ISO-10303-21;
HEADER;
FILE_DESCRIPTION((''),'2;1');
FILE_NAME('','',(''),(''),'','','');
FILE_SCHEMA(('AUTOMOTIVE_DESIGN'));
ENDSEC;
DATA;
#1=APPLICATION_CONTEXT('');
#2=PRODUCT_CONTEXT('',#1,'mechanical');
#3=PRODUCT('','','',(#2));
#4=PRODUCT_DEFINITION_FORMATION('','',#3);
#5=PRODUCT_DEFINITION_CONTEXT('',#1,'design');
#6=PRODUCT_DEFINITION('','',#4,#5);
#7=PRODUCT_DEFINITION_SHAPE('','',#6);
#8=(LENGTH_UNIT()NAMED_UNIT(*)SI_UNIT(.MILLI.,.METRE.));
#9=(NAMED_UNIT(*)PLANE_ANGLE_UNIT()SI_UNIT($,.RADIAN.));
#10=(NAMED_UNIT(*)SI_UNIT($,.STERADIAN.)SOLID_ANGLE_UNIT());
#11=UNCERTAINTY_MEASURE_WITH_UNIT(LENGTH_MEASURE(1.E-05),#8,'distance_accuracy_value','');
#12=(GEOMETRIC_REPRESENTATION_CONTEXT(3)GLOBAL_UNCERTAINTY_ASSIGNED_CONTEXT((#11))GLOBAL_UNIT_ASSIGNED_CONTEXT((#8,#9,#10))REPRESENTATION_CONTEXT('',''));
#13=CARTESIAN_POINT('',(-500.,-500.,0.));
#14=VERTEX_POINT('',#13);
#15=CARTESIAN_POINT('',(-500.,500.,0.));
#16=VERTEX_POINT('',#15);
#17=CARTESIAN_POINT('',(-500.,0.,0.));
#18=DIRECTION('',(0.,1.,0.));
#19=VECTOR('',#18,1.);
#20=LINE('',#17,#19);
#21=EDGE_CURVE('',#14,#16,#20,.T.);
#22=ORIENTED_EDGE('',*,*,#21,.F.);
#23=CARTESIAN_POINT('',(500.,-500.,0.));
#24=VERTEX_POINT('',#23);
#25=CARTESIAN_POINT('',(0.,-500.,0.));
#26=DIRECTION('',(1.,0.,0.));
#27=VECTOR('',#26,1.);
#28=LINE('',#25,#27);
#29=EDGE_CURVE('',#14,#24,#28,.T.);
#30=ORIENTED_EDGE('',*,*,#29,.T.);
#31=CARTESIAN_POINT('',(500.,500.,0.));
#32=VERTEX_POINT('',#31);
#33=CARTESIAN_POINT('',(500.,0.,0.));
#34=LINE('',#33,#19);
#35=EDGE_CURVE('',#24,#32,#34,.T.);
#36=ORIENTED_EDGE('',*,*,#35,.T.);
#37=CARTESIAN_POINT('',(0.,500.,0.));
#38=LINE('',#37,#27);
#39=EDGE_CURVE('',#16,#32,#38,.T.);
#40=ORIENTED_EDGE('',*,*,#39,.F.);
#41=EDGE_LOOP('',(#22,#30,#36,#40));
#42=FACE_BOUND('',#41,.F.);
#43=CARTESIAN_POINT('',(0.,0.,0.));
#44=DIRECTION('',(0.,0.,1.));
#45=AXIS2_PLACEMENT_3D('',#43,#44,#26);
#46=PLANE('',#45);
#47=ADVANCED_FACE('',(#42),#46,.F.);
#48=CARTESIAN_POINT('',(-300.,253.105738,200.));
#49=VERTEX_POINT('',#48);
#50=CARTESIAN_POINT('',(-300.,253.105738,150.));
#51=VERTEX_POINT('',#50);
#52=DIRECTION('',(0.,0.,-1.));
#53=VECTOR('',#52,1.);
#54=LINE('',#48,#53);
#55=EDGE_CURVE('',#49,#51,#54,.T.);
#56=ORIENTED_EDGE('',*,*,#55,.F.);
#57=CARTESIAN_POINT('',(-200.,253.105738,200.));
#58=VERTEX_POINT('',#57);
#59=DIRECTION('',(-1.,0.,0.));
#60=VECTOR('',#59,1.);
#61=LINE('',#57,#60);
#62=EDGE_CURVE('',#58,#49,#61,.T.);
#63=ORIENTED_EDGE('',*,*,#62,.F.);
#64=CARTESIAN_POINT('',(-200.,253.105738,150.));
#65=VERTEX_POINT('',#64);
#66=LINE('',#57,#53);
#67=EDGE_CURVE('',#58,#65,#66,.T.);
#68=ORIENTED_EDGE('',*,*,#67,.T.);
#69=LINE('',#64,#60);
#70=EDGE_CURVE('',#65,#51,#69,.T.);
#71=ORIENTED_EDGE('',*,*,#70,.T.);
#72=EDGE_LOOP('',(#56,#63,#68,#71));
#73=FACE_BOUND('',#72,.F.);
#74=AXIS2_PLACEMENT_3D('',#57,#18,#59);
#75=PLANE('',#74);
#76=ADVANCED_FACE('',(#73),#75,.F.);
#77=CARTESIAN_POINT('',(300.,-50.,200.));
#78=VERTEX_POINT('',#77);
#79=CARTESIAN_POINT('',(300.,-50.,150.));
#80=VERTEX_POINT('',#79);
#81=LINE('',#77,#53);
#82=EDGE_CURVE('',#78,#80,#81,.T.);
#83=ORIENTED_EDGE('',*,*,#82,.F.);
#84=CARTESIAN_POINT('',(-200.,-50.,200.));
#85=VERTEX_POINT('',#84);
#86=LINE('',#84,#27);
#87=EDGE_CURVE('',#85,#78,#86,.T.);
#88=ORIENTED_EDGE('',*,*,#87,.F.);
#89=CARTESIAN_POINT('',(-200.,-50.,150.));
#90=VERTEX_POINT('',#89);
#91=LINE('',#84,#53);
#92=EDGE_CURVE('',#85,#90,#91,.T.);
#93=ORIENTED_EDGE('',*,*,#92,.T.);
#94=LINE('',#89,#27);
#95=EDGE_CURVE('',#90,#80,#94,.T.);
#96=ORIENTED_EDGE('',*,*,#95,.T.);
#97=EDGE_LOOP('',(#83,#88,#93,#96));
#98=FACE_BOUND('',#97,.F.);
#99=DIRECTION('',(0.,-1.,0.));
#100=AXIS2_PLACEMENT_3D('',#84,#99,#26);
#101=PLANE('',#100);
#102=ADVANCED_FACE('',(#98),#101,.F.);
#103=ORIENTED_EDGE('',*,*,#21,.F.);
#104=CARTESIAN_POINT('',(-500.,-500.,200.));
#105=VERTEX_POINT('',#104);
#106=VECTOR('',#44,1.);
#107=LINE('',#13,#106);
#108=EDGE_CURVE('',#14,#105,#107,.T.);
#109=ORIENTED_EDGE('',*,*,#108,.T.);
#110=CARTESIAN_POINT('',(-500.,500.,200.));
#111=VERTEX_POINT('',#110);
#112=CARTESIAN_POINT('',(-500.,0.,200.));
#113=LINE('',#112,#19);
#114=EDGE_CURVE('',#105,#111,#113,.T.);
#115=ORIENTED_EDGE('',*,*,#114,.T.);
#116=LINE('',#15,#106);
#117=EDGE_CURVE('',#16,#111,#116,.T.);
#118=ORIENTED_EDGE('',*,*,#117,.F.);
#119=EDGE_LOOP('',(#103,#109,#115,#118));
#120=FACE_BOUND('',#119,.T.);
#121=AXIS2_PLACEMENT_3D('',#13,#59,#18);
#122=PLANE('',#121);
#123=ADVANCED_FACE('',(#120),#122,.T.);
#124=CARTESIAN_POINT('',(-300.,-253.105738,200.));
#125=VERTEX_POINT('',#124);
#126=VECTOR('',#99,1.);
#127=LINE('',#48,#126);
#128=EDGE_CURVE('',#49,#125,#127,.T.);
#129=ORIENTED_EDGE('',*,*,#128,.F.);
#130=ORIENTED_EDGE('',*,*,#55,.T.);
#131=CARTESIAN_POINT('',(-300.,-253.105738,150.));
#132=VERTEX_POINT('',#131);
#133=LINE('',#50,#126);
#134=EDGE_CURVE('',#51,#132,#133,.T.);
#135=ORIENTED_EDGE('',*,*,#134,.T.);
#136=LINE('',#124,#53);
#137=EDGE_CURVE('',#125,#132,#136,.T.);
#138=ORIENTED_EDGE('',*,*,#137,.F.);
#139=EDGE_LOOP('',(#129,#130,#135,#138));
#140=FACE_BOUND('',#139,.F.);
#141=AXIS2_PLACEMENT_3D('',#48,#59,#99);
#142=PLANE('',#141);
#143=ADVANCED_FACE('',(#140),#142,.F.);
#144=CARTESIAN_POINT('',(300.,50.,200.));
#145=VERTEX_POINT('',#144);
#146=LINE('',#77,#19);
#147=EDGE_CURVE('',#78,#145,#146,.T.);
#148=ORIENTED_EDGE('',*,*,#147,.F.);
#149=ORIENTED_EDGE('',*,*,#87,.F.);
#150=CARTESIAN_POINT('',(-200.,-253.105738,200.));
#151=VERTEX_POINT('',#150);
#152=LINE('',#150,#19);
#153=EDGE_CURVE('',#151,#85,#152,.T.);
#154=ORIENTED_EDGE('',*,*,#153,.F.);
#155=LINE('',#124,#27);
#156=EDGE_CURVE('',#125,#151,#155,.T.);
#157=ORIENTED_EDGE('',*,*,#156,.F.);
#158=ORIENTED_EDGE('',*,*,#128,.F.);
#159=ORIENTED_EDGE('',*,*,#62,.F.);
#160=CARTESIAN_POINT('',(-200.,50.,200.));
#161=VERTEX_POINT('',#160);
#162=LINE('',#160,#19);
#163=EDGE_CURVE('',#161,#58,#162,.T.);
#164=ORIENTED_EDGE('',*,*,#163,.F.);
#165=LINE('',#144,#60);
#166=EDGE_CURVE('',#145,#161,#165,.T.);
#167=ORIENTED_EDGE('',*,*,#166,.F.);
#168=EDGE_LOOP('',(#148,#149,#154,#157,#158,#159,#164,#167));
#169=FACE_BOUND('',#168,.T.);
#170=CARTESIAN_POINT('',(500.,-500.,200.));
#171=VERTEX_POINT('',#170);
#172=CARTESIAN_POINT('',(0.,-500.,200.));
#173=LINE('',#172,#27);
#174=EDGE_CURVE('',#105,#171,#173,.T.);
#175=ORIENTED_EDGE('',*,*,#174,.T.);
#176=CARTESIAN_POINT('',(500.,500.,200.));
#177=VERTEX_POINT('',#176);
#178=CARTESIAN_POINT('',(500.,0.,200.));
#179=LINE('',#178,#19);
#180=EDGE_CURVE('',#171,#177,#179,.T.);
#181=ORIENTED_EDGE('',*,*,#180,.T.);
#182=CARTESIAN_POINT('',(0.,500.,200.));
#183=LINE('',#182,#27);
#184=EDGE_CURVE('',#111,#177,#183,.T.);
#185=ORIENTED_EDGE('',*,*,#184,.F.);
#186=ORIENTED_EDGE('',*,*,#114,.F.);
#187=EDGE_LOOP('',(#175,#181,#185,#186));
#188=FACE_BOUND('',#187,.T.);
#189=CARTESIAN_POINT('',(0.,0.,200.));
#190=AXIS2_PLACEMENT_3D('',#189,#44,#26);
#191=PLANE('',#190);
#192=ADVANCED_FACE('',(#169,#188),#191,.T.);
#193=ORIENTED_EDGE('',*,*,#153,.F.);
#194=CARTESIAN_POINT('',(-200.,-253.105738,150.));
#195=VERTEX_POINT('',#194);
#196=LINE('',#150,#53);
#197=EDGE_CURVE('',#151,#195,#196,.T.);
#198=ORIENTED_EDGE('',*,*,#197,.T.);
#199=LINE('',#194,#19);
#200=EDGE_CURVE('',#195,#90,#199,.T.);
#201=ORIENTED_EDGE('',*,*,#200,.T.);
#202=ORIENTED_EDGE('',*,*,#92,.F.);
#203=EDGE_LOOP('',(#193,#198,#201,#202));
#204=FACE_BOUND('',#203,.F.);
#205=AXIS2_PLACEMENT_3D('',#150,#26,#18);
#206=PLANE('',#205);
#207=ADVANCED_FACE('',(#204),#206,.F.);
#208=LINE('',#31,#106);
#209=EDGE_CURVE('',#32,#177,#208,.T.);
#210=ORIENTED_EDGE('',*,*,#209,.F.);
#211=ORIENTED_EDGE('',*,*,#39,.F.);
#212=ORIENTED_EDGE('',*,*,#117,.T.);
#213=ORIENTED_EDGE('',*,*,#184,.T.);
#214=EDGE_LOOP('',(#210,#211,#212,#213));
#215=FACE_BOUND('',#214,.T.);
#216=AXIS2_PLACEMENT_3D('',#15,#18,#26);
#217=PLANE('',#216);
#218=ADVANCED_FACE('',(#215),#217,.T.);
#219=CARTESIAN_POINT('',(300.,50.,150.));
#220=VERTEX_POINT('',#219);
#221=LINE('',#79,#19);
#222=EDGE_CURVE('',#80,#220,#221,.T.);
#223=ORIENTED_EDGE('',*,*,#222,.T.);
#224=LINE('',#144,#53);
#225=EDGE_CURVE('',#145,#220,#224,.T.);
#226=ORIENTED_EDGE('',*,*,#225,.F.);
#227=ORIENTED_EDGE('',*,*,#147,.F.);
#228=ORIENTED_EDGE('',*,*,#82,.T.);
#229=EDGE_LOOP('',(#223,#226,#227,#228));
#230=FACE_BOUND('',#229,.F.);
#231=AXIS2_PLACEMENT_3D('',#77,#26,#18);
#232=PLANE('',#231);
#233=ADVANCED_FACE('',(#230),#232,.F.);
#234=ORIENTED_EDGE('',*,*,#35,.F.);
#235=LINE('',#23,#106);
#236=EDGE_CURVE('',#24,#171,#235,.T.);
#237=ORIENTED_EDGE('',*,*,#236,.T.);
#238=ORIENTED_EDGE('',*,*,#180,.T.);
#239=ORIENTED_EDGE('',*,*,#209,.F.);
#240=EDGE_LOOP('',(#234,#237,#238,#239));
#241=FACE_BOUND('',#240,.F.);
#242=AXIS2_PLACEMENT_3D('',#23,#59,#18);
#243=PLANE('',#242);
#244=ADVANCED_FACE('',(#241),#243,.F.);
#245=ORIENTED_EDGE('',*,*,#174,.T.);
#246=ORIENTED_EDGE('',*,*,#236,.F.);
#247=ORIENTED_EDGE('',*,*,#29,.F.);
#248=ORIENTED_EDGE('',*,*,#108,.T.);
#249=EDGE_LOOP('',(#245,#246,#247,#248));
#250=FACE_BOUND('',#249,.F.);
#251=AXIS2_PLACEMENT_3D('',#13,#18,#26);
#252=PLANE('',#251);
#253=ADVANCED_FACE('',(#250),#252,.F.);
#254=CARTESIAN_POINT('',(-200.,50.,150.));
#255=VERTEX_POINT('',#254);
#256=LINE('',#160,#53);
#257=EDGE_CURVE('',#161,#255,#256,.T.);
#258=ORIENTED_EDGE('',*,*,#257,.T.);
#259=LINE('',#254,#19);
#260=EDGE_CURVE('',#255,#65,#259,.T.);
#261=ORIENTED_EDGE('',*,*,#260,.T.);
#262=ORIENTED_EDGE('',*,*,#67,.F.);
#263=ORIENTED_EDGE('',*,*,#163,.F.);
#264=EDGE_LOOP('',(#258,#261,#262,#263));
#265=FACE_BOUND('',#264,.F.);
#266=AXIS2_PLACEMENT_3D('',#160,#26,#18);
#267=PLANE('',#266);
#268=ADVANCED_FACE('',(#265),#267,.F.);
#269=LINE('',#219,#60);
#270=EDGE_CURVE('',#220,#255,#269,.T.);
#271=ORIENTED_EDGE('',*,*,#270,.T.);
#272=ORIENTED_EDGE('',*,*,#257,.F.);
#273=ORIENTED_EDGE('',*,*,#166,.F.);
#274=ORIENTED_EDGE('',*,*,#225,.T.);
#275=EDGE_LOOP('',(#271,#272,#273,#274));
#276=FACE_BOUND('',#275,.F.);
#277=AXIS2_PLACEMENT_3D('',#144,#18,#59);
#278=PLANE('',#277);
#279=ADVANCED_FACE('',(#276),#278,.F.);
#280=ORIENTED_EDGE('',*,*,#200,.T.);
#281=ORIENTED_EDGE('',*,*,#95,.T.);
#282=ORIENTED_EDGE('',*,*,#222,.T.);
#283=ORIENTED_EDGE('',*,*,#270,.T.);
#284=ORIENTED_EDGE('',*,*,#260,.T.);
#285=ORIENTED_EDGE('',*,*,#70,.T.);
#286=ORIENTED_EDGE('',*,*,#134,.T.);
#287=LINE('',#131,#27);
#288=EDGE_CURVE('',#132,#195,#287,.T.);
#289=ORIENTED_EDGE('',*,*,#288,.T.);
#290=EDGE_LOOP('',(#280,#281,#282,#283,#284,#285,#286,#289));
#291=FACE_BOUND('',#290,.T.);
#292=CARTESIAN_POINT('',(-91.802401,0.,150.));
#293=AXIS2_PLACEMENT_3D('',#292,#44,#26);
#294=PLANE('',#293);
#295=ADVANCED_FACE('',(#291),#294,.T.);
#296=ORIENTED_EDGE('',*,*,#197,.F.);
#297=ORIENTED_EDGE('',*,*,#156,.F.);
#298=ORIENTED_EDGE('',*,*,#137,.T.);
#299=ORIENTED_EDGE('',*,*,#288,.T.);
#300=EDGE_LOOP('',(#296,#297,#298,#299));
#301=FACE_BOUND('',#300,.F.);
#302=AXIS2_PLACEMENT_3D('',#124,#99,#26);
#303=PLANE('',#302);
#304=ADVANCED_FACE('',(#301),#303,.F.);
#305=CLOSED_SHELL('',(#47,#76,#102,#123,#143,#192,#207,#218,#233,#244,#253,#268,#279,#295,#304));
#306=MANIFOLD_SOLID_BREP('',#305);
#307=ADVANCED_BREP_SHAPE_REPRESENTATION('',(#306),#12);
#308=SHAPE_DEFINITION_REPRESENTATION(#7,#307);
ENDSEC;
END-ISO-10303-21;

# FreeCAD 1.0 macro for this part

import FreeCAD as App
import Part
import Sketcher
from FreeCAD import Vector
Q = App.Units.Quantity


def add_polygon(sketch, points):
    """Adds a closed chain of lines whose ends are joined by coincident constraints."""
    first, n = sketch.GeometryCount, len(points)
    for a, b in zip(points, points[1:] + points[:1]):
        sketch.addGeometry(Part.LineSegment(App.Vector(*a, 0), App.Vector(*b, 0)), False)
    for i in range(n):
        sketch.addConstraint(Sketcher.Constraint("Coincident", first + i, 2, first + (i + 1) % n, 1))

doc = App.newDocument("Part")
body = doc.addObject("PartDesign::Body", "Body")

sketch1 = doc.addObject("Sketcher::SketchObject", "Sketch")
body.addObject(sketch1)
sketch1.AttachmentSupport = (doc.XY_Plane, [""])
sketch1.MapMode = "FlatFace"
add_polygon(sketch1, [(-500, 500), (-500, -500), (500, -500), (500, 500)])
sketch1.addConstraint([
    Sketcher.Constraint("Vertical", 0),
    Sketcher.Constraint("Horizontal", 1),
    Sketcher.Constraint("Vertical", 2),
    Sketcher.Constraint("Horizontal", 3),
    Sketcher.Constraint("Symmetric", 0, 2, 2, 2, -1, 1),
    Sketcher.Constraint("Equal", 3, 0),
    Sketcher.Constraint("DistanceX", 1, 1, 1, 2, Q("1000 mm")),
])
pad1 = doc.addObject("PartDesign::Pad", "Pad")
body.addObject(pad1)
pad1.Profile = sketch1
pad1.Length = 200

sketch2 = doc.addObject("Sketcher::SketchObject", "Sketch001")
body.addObject(sketch2)
sketch2.AttachmentSupport = (doc.XY_Plane, [""])
sketch2.MapMode = "FlatFace"
sketch2.AttachmentOffset = App.Placement(Vector(0, 0, 200), App.Rotation())
add_polygon(sketch2, [(-300, 253), (-300, -253), (-200, -253), (-200, -50), (300, -50), (300, 50), (-200, 50), (-200, 253)])
sketch2.addConstraint([
    Sketcher.Constraint("Vertical", 0),
    Sketcher.Constraint("Horizontal", 1),
    Sketcher.Constraint("Vertical", 2),
    Sketcher.Constraint("Horizontal", 3),
    Sketcher.Constraint("Vertical", 4),
    Sketcher.Constraint("Horizontal", 5),
    Sketcher.Constraint("Vertical", 6),
    Sketcher.Constraint("Horizontal", 7),
    Sketcher.Constraint("Symmetric", 2, 2, 5, 2, -1),
    Sketcher.Constraint("Equal", 7, 4),
    Sketcher.Constraint("Equal", 2, 6),
    Sketcher.Constraint("DistanceX", 1, 1, 1, 2, Q("100 mm")),
    Sketcher.Constraint("DistanceX", 3, 1, 3, 2, Q("500 mm")),
    Sketcher.Constraint("DistanceX", 0, 2, -1, 1, Q("300 mm")),
    Sketcher.Constraint("DistanceY", 2, 1, 2, 2, Q("203.105738 mm")),
])
pocket1 = doc.addObject("PartDesign::Pocket", "Pocket")
body.addObject(pocket1)
pocket1.Profile = sketch2
pocket1.Length = 50

doc.recompute()
